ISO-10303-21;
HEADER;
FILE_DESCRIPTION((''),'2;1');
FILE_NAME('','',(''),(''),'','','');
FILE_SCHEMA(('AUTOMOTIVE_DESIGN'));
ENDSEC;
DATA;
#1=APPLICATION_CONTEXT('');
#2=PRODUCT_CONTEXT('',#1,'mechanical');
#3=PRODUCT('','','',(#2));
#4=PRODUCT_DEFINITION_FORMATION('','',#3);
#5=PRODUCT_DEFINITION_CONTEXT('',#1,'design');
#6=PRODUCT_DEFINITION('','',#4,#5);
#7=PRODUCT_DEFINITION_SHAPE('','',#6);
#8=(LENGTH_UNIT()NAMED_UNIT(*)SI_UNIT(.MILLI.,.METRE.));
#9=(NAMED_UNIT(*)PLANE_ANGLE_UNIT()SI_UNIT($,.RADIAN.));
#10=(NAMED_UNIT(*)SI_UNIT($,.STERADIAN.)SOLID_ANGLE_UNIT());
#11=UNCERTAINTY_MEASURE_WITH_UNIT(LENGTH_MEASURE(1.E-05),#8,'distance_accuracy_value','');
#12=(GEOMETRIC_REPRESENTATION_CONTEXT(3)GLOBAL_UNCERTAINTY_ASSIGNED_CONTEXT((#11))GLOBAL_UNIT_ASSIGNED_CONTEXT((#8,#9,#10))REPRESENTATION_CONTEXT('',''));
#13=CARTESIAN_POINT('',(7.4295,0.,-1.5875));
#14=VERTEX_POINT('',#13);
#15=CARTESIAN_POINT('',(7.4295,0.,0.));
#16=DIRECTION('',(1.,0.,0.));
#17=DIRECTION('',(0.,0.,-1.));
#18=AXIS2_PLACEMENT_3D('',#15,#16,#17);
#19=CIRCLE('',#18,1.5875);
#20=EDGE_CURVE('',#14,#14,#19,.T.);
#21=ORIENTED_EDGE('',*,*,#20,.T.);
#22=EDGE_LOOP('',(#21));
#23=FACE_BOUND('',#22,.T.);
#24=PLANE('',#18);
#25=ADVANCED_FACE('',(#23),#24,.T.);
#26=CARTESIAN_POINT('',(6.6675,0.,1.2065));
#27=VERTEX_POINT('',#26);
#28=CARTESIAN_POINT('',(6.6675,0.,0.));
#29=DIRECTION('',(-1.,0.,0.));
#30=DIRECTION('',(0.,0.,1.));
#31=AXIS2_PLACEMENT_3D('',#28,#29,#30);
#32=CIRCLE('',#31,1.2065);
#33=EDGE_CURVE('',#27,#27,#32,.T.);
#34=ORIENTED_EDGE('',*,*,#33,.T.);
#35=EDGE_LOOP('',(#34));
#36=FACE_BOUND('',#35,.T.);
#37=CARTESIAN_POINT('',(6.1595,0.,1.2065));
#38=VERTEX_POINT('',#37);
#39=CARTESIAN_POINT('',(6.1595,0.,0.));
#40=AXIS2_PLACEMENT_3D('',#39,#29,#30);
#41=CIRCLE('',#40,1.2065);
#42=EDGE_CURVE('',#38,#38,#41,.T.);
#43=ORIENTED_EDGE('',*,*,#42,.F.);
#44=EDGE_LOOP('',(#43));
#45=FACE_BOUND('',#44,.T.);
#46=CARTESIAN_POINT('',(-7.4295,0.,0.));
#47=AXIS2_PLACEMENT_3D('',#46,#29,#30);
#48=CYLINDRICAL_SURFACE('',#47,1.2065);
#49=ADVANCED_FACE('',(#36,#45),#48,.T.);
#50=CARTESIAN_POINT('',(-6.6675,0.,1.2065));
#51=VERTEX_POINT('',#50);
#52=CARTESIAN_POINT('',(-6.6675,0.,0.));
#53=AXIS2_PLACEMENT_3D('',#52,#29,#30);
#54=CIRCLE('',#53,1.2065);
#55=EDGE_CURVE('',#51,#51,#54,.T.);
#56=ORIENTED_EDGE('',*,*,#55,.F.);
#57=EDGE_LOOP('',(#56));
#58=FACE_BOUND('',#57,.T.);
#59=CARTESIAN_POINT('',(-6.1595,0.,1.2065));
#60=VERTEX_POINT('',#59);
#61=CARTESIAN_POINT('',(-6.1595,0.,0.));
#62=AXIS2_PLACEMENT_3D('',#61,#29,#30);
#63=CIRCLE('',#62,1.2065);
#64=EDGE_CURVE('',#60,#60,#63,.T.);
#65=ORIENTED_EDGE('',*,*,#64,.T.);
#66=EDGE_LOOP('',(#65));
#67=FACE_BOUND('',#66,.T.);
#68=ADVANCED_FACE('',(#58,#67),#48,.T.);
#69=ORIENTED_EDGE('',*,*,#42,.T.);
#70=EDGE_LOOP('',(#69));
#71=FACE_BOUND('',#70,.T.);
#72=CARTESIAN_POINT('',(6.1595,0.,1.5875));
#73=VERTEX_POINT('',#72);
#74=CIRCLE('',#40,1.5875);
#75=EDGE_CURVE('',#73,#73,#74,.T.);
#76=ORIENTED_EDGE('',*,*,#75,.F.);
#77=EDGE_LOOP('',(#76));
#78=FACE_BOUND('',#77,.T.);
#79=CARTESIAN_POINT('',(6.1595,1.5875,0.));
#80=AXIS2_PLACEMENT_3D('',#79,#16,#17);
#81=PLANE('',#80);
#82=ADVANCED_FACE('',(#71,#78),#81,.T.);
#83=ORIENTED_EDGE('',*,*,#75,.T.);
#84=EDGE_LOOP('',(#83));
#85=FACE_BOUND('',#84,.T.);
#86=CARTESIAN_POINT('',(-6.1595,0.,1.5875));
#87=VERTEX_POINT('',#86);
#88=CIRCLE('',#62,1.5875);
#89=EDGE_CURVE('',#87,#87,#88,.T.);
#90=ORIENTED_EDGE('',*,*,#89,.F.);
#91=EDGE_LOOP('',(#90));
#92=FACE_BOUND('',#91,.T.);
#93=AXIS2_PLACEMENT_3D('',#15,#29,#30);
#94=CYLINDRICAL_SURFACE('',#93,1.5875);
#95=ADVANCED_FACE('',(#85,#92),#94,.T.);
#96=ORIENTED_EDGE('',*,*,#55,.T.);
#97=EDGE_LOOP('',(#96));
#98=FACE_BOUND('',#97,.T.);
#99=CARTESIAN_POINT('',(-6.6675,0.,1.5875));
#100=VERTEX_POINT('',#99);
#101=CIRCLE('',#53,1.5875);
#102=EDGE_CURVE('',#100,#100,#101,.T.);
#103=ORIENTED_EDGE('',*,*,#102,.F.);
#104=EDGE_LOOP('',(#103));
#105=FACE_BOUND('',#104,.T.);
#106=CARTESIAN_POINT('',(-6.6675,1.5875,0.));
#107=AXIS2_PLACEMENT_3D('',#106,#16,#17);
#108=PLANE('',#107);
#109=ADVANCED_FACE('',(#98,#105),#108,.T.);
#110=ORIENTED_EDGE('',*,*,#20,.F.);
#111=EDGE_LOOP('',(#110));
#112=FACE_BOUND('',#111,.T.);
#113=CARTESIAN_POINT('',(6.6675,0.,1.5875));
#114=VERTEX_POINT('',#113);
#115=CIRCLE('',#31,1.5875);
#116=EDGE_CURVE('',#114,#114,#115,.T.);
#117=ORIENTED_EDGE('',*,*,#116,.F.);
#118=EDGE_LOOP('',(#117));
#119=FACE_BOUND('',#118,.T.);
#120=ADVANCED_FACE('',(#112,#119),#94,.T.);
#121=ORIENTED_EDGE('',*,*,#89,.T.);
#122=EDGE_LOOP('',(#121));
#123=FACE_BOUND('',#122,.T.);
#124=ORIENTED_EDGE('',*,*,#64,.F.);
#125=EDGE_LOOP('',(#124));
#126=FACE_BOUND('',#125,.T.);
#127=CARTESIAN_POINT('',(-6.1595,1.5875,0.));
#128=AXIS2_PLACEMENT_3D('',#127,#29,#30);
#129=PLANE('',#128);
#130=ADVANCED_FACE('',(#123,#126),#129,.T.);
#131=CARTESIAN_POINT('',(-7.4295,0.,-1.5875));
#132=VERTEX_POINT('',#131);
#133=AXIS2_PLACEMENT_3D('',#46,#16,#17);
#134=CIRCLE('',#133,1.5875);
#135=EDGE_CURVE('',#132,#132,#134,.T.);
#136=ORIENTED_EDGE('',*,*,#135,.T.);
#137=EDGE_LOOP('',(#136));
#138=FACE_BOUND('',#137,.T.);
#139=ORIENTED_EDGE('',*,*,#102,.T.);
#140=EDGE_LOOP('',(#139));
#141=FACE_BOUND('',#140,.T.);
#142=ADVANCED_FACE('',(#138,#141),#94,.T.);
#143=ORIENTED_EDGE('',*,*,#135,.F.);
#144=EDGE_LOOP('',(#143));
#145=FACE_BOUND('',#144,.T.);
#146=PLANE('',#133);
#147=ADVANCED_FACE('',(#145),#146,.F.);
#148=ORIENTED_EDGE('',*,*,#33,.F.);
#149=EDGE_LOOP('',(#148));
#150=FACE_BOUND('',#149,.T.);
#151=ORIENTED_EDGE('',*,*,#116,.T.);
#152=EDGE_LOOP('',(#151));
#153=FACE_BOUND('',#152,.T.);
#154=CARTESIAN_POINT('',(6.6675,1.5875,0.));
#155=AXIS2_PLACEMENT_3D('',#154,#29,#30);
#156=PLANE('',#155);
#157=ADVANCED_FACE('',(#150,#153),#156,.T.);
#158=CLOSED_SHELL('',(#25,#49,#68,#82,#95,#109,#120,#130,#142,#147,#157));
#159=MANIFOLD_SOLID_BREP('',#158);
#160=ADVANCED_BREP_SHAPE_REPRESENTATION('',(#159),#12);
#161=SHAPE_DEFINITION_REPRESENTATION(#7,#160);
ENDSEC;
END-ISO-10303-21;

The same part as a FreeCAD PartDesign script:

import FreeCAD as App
import Part
import Sketcher
Q = App.Units.Quantity

doc = App.newDocument("Part")
body = doc.addObject("PartDesign::Body", "Body")

sketch1 = body.newObject("Sketcher::SketchObject", "Sketch")
sketch1.AttachmentSupport = (doc.getObject("YZ_Plane"), [""])
sketch1.MapMode = "FlatFace"
sketch1.addGeometry(Part.Circle(App.Vector(0, 0, 0), App.Vector(0, 0, 1), 1.5875), False)
sketch1.addConstraint([
    Sketcher.Constraint("Coincident", 0, 3, -1, 1),
    Sketcher.Constraint("Diameter", 0, Q("0.125 in")),
])
pad1 = body.newObject("PartDesign::Pad", "Pad")
pad1.Profile = sketch1
pad1.Length = Q("0.585 in")
pad1.Midplane = True

sketch2 = body.newObject("Sketcher::SketchObject", "Sketch001")
sketch2.AttachmentSupport = (doc.getObject("XY_Plane"), [""])
sketch2.MapMode = "FlatFace"
sketch2.addGeometry([
    Part.LineSegment(App.Vector(-6.6675, 1.5875, 0), App.Vector(-6.6675, 1.2065, 0)),
    Part.LineSegment(App.Vector(-6.6675, 1.2065, 0), App.Vector(-6.1595, 1.2065, 0)),
    Part.LineSegment(App.Vector(-6.1595, 1.2065, 0), App.Vector(-6.1595, 1.5875, 0)),
    Part.LineSegment(App.Vector(-6.1595, 1.5875, 0), App.Vector(-6.6675, 1.5875, 0)),
    Part.LineSegment(App.Vector(6.1595, 1.5875, 0), App.Vector(6.1595, 1.2065, 0)),
    Part.LineSegment(App.Vector(6.1595, 1.2065, 0), App.Vector(6.6675, 1.2065, 0)),
    Part.LineSegment(App.Vector(6.6675, 1.2065, 0), App.Vector(6.6675, 1.5875, 0)),
    Part.LineSegment(App.Vector(6.6675, 1.5875, 0), App.Vector(6.1595, 1.5875, 0)),
], False)
sketch2.addConstraint([
    Sketcher.Constraint("Coincident", 0, 2, 1, 1),
    Sketcher.Constraint("Coincident", 1, 2, 2, 1),
    Sketcher.Constraint("Coincident", 2, 2, 3, 1),
    Sketcher.Constraint("Coincident", 3, 2, 0, 1),
    Sketcher.Constraint("Coincident", 4, 2, 5, 1),
    Sketcher.Constraint("Coincident", 5, 2, 6, 1),
    Sketcher.Constraint("Coincident", 6, 2, 7, 1),
    Sketcher.Constraint("Coincident", 7, 2, 4, 1),
    Sketcher.Constraint("Vertical", 0),
    Sketcher.Constraint("Horizontal", 1),
    Sketcher.Constraint("Vertical", 2),
    Sketcher.Constraint("Horizontal", 3),
    Sketcher.Constraint("Vertical", 4),
    Sketcher.Constraint("Horizontal", 5),
    Sketcher.Constraint("Vertical", 6),
    Sketcher.Constraint("Horizontal", 7),
    Sketcher.Constraint("Symmetric", 1, 2, 4, 2, -2),
    Sketcher.Constraint("Symmetric", 3, 2, 6, 2, -2),
    Sketcher.Constraint("DistanceX", 1, 1, 1, 2, Q("0.02 in")),
    Sketcher.Constraint("DistanceY", 0, 2, 0, 1, Q("0.015 in")),
    Sketcher.Constraint("DistanceY", -1, 1, 2, 2, Q("0.0625 in")),
    Sketcher.Constraint("DistanceX", 1, 2, 4, 2, Q("0.485 in")),
])
groove = body.newObject("PartDesign::Groove", "Groove")
groove.Profile = sketch2
groove.ReferenceAxis = (sketch2, ["H_Axis"])
groove.Angle = 360

doc.recompute()
